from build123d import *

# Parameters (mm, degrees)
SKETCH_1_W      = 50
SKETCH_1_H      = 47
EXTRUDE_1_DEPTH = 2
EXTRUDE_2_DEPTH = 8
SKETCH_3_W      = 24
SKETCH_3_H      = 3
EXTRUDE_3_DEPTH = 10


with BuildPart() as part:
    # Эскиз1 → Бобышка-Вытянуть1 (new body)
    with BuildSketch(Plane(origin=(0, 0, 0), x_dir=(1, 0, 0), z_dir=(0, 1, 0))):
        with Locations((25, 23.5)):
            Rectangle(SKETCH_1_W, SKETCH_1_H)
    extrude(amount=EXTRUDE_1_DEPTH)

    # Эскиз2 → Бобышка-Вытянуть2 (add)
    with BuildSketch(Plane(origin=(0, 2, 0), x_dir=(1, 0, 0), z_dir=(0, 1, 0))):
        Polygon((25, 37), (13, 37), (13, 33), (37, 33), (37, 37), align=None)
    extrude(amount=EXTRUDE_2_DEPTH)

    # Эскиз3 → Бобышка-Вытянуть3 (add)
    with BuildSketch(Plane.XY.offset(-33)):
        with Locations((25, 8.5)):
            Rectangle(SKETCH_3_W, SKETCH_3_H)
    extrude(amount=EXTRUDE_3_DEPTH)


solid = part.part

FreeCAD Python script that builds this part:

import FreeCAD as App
import Part
import Sketcher
Q = App.Units.Quantity

doc = App.newDocument("Part")
body = doc.addObject("PartDesign::Body", "Body")

# Sketch on XZ plane
sketch1 = body.newObject("Sketcher::SketchObject", "Sketch")
sketch1.AttachmentSupport = (doc.getObject("XZ_Plane"), [""])
sketch1.MapMode = "FlatFace"
sketch1.addGeometry([
    Part.LineSegment(App.Vector(0, -47, 0), App.Vector(0, 0, 0)),
    Part.LineSegment(App.Vector(0, 0, 0), App.Vector(50, 0, 0)),
    Part.LineSegment(App.Vector(50, 0, 0), App.Vector(50, -47, 0)),
    Part.LineSegment(App.Vector(50, -47, 0), App.Vector(0, -47, 0)),
], False)
sketch1.addConstraint([
    Sketcher.Constraint("Coincident", 0, 2, 1, 1),
    Sketcher.Constraint("Coincident", 1, 2, 2, 1),
    Sketcher.Constraint("Coincident", 2, 2, 3, 1),
    Sketcher.Constraint("Coincident", 3, 2, 0, 1),
    Sketcher.Constraint("Vertical", 0),
    Sketcher.Constraint("Horizontal", 1),
    Sketcher.Constraint("Vertical", 2),
    Sketcher.Constraint("Horizontal", 3),
    Sketcher.Constraint("Coincident", 0, 2, -1, 1),
    Sketcher.Constraint("DistanceX", 1, 1, 1, 2, Q("50 mm")),
    Sketcher.Constraint("DistanceY", 0, 1, 0, 2, Q("47 mm")),
])
pad1 = body.newObject("PartDesign::Pad", "Pad")
pad1.Profile = sketch1
pad1.Length = 2
pad1.Reversed = True

# Sketch on XZ plane
sketch2 = body.newObject("Sketcher::SketchObject", "Sketch001")
sketch2.AttachmentSupport = (doc.getObject("XZ_Plane"), [""])
sketch2.MapMode = "FlatFace"
sketch2.AttachmentOffset = App.Placement(App.Vector(0, 0, -2), App.Rotation())
sketch2.addGeometry([
    Part.LineSegment(App.Vector(13, -37, 0), App.Vector(13, -33, 0)),
    Part.LineSegment(App.Vector(13, -33, 0), App.Vector(37, -33, 0)),
    Part.LineSegment(App.Vector(37, -33, 0), App.Vector(37, -37, 0)),
    Part.LineSegment(App.Vector(37, -37, 0), App.Vector(13, -37, 0)),
], False)
sketch2.addConstraint([
    Sketcher.Constraint("Coincident", 0, 2, 1, 1),
    Sketcher.Constraint("Coincident", 1, 2, 2, 1),
    Sketcher.Constraint("Coincident", 2, 2, 3, 1),
    Sketcher.Constraint("Coincident", 3, 2, 0, 1),
    Sketcher.Constraint("Vertical", 0),
    Sketcher.Constraint("Horizontal", 1),
    Sketcher.Constraint("Vertical", 2),
    Sketcher.Constraint("Horizontal", 3),
    Sketcher.Constraint("DistanceX", 1, 1, 1, 2, Q("24 mm")),
    Sketcher.Constraint("DistanceY", 0, 1, 0, 2, Q("4 mm")),
    Sketcher.Constraint("DistanceX", -1, 1, 0, 2, Q("13 mm")),
    Sketcher.Constraint("DistanceY", 0, 2, -1, 1, Q("33 mm")),
])
pad2 = body.newObject("PartDesign::Pad", "Pad001")
pad2.Profile = sketch2
pad2.Length = 8
pad2.Reversed = True

# Sketch on XY plane
sketch3 = body.newObject("Sketcher::SketchObject", "Sketch002")
sketch3.AttachmentSupport = (doc.getObject("XY_Plane"), [""])
sketch3.MapMode = "FlatFace"
sketch3.AttachmentOffset = App.Placement(App.Vector(0, 0, -33), App.Rotation())
sketch3.addGeometry([
    Part.LineSegment(App.Vector(13, 10, 0), App.Vector(13, 7, 0)),
    Part.LineSegment(App.Vector(13, 7, 0), App.Vector(37, 7, 0)),
    Part.LineSegment(App.Vector(37, 7, 0), App.Vector(37, 10, 0)),
    Part.LineSegment(App.Vector(37, 10, 0), App.Vector(13, 10, 0)),
], False)
sketch3.addConstraint([
    Sketcher.Constraint("Coincident", 0, 2, 1, 1),
    Sketcher.Constraint("Coincident", 1, 2, 2, 1),
    Sketcher.Constraint("Coincident", 2, 2, 3, 1),
    Sketcher.Constraint("Coincident", 3, 2, 0, 1),
    Sketcher.Constraint("Vertical", 0),
    Sketcher.Constraint("Horizontal", 1),
    Sketcher.Constraint("Vertical", 2),
    Sketcher.Constraint("Horizontal", 3),
    Sketcher.Constraint("DistanceX", 1, 1, 1, 2, Q("24 mm")),
    Sketcher.Constraint("DistanceY", 0, 2, 0, 1, Q("3 mm")),
    Sketcher.Constraint("DistanceX", -1, 1, 0, 2, Q("13 mm")),
    Sketcher.Constraint("DistanceY", -1, 1, 0, 2, Q("7 mm")),
])
pad3 = body.newObject("PartDesign::Pad", "Pad002")
pad3.Profile = sketch3
pad3.Length = 10

doc.recompute()
